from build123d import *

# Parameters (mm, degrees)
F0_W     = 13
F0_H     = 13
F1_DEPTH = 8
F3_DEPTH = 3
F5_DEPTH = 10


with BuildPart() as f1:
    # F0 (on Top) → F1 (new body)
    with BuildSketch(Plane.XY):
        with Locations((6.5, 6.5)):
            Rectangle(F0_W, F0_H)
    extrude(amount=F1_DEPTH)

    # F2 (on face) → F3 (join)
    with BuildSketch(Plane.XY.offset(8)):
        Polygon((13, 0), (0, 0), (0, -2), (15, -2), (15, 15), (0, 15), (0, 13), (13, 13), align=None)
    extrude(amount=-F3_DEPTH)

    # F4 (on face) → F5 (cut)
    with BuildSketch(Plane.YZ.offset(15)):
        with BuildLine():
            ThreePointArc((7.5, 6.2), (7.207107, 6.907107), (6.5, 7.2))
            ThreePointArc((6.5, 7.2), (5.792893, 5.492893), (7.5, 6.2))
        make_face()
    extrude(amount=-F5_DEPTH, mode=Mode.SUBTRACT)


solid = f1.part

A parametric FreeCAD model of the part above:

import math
import FreeCAD as App
import Part
import Sketcher
from FreeCAD import Vector


def add_polygon(sketch, points):
    """Adds a closed chain of lines whose ends are joined by coincident constraints."""
    first, n = sketch.GeometryCount, len(points)
    for a, b in zip(points, points[1:] + points[:1]):
        sketch.addGeometry(Part.LineSegment(App.Vector(*a, 0), App.Vector(*b, 0)), False)
    for i in range(n):
        sketch.addConstraint(Sketcher.Constraint("Coincident", first + i, 2, first + (i + 1) % n, 1))

doc = App.newDocument("Part")
body = doc.addObject("PartDesign::Body", "Body")

# Sketch on XY plane
sketch1 = doc.addObject("Sketcher::SketchObject", "Sketch")
body.addObject(sketch1)
sketch1.AttachmentSupport = (doc.XY_Plane, [""])
sketch1.MapMode = "FlatFace"
add_polygon(sketch1, [(0, 13), (0, 0), (13, 0), (13, 13)])  # lines 0-3
sketch1.addConstraint(Sketcher.Constraint("Vertical", 0))
sketch1.addConstraint(Sketcher.Constraint("Horizontal", 1))
sketch1.addConstraint(Sketcher.Constraint("Vertical", 2))
sketch1.addConstraint(Sketcher.Constraint("Horizontal", 3))
sketch1.addConstraint(Sketcher.Constraint("Coincident", 0, 2, -1, 1))
sketch1.addConstraint(Sketcher.Constraint("Equal", 3, 0))
sketch1.addConstraint(Sketcher.Constraint("DistanceX", 1, 1, 1, 2, 13.0))
pad1 = doc.addObject("PartDesign::Pad", "Pad")
body.addObject(pad1)
pad1.Profile = sketch1
pad1.Length = 8

# Sketch on XY plane
sketch2 = doc.addObject("Sketcher::SketchObject", "Sketch001")
body.addObject(sketch2)
sketch2.AttachmentSupport = (doc.XY_Plane, [""])
sketch2.MapMode = "FlatFace"
sketch2.AttachmentOffset = App.Placement(Vector(0, 0, 8), App.Rotation())
add_polygon(sketch2, [(13, 0), (0, 0), (0, -2), (15, -2), (15, 15), (0, 15), (0, 13), (13, 13)])  # lines 0-7
sketch2.addConstraint(Sketcher.Constraint("Horizontal", 0))
sketch2.addConstraint(Sketcher.Constraint("Vertical", 1))
sketch2.addConstraint(Sketcher.Constraint("Horizontal", 2))
sketch2.addConstraint(Sketcher.Constraint("Vertical", 3))
sketch2.addConstraint(Sketcher.Constraint("Horizontal", 4))
sketch2.addConstraint(Sketcher.Constraint("Vertical", 5))
sketch2.addConstraint(Sketcher.Constraint("Horizontal", 6))
sketch2.addConstraint(Sketcher.Constraint("Vertical", 7))
sketch2.addConstraint(Sketcher.Constraint("Coincident", 0, 2, -1, 1))
sketch2.addConstraint(Sketcher.Constraint("PointOnObject", 4, 2, -2))
sketch2.addConstraint(Sketcher.Constraint("Equal", 1, 5))
sketch2.addConstraint(Sketcher.Constraint("Equal", 6, 7))
sketch2.addConstraint(Sketcher.Constraint("DistanceX", 0, 2, 0, 1, 13.0))
sketch2.addConstraint(Sketcher.Constraint("DistanceX", 2, 1, 2, 2, 15.0))
sketch2.addConstraint(Sketcher.Constraint("DistanceY", 1, 2, 1, 1, 2.0))
pad2 = doc.addObject("PartDesign::Pad", "Pad001")
body.addObject(pad2)
pad2.Profile = sketch2
pad2.Length = 3
pad2.Reversed = True

# Sketch on YZ plane
sketch3 = doc.addObject("Sketcher::SketchObject", "Sketch002")
body.addObject(sketch3)
sketch3.AttachmentSupport = (doc.YZ_Plane, [""])
sketch3.MapMode = "FlatFace"
sketch3.AttachmentOffset = App.Placement(Vector(0, 0, 15), App.Rotation())
sketch3.addGeometry(Part.ArcOfCircle(Part.Circle(Vector(6.5, 6.2, 0), Vector(0, 0, 1), 1), math.radians(0), math.radians(90)), False)
sketch3.addGeometry(Part.ArcOfCircle(Part.Circle(Vector(6.5, 6.2, 0), Vector(0, 0, 1), 1), math.radians(90), math.radians(360)), False)
sketch3.addConstraint(Sketcher.Constraint("Tangent", 0, 1, 1, 2))
sketch3.addConstraint(Sketcher.Constraint("Coincident", 1, 1, 0, 2))
sketch3.addConstraint(Sketcher.Constraint("Horizontal", 1, 3, 0, 1))
sketch3.addConstraint(Sketcher.Constraint("Vertical", 0, 3, 1, 1))
sketch3.addConstraint(Sketcher.Constraint("Radius", 0, 0.999999))
sketch3.addConstraint(Sketcher.Constraint("DistanceX", -1, 1, 0, 3, 6.500001))
sketch3.addConstraint(Sketcher.Constraint("DistanceY", -1, 1, 0, 3, 6.200001))
pocket1 = doc.addObject("PartDesign::Pocket", "Pocket")
body.addObject(pocket1)
pocket1.Profile = sketch3
pocket1.Length = 10

doc.recompute()
